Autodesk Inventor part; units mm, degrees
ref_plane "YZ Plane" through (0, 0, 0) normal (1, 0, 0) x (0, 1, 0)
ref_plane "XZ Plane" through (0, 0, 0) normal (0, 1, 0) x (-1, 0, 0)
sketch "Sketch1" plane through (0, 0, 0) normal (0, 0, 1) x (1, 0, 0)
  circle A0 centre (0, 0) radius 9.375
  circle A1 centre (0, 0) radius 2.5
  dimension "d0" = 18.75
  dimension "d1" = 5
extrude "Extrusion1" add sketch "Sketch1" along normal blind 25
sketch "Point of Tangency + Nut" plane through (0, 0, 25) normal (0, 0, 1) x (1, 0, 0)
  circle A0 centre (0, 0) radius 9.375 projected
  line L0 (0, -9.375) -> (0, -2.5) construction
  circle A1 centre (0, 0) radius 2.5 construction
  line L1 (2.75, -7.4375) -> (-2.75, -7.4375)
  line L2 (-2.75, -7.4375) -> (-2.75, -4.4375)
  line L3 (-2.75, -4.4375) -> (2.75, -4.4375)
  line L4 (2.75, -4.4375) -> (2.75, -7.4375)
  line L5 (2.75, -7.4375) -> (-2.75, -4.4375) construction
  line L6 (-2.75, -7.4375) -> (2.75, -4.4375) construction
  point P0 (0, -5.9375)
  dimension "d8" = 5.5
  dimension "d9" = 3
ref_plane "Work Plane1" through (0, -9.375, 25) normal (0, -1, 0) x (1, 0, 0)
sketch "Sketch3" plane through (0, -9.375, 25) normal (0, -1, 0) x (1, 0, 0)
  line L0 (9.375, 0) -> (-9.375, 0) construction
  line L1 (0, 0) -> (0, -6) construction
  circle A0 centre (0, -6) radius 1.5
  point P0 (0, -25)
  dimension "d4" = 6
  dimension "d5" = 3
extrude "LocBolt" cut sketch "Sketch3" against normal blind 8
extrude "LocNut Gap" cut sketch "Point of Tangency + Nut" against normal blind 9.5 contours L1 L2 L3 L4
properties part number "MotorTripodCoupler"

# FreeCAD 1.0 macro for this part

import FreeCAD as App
import Part
import Sketcher
Q = App.Units.Quantity


def add_polygon(sketch, points):
    """Adds a closed chain of lines whose ends are joined by coincident constraints."""
    first, n = sketch.GeometryCount, len(points)
    for a, b in zip(points, points[1:] + points[:1]):
        sketch.addGeometry(Part.LineSegment(App.Vector(*a, 0), App.Vector(*b, 0)), False)
    for i in range(n):
        sketch.addConstraint(Sketcher.Constraint("Coincident", first + i, 2, first + (i + 1) % n, 1))

doc = App.newDocument("Part")
body = doc.addObject("PartDesign::Body", "Body")

sketch1 = body.newObject("Sketcher::SketchObject", "Sketch")
sketch1.AttachmentSupport = (doc.getObject("XY_Plane"), [""])
sketch1.MapMode = "FlatFace"
sketch1.addGeometry([
    Part.Circle(App.Vector(0, 0, 0), App.Vector(0, 0, 1), 9.4),
    Part.Circle(App.Vector(0, 0, 0), App.Vector(0, 0, 1), 2.5),
], False)
sketch1.addConstraint([
    Sketcher.Constraint("Coincident", 0, 3, -1, 1),
    Sketcher.Constraint("Coincident", 1, 3, -1, 1),
    Sketcher.Constraint("Diameter", 1, Q("5 mm")),
    Sketcher.Constraint("Diameter", 0, Q("18.75 mm")),
])
pad1 = body.newObject("PartDesign::Pad", "Pad")
pad1.Profile = sketch1
pad1.Length = 25

sketch2 = body.newObject("Sketcher::SketchObject", "Sketch001")
sketch2.AttachmentSupport = (doc.getObject("XZ_Plane"), [""])
sketch2.MapMode = "FlatFace"
sketch2.AttachmentOffset = App.Placement(App.Vector(0, 0, 9.375), App.Rotation())
sketch2.addGeometry(Part.Circle(App.Vector(0, 19, 0), App.Vector(0, 0, 1), 1.5), False)
sketch2.addConstraint([
    Sketcher.Constraint("PointOnObject", 0, 3, -2),
    Sketcher.Constraint("Diameter", 0, Q("3 mm")),
    Sketcher.Constraint("DistanceY", -1, 1, 0, 3, Q("19 mm")),
])
pocket1 = body.newObject("PartDesign::Pocket", "Pocket")
pocket1.Profile = sketch2
pocket1.Length = 8

sketch3 = body.newObject("Sketcher::SketchObject", "Sketch002")
sketch3.AttachmentSupport = (doc.getObject("XY_Plane"), [""])
sketch3.MapMode = "FlatFace"
sketch3.AttachmentOffset = App.Placement(App.Vector(0, 0, 25), App.Rotation())
add_polygon(sketch3, [(-2.8, -7.4), (2.8, -7.4), (2.8, -4.4), (-2.8, -4.4)])
sketch3.addConstraint([
    Sketcher.Constraint("Horizontal", 0),
    Sketcher.Constraint("Vertical", 1),
    Sketcher.Constraint("Horizontal", 2),
    Sketcher.Constraint("Vertical", 3),
    Sketcher.Constraint("DistanceY", 1, 1, 1, 2, Q("3 mm")),
    Sketcher.Constraint("DistanceX", 0, 1, 0, 2, Q("5.5 mm")),
    Sketcher.Constraint("DistanceX", -1, 1, 0, 2, Q("2.75 mm")),
    Sketcher.Constraint("DistanceY", 0, 2, -1, 1, Q("7.4375 mm")),
])
pocket2 = body.newObject("PartDesign::Pocket", "Pocket001")
pocket2.Profile = sketch3
pocket2.Length = 9.5

doc.recompute()
